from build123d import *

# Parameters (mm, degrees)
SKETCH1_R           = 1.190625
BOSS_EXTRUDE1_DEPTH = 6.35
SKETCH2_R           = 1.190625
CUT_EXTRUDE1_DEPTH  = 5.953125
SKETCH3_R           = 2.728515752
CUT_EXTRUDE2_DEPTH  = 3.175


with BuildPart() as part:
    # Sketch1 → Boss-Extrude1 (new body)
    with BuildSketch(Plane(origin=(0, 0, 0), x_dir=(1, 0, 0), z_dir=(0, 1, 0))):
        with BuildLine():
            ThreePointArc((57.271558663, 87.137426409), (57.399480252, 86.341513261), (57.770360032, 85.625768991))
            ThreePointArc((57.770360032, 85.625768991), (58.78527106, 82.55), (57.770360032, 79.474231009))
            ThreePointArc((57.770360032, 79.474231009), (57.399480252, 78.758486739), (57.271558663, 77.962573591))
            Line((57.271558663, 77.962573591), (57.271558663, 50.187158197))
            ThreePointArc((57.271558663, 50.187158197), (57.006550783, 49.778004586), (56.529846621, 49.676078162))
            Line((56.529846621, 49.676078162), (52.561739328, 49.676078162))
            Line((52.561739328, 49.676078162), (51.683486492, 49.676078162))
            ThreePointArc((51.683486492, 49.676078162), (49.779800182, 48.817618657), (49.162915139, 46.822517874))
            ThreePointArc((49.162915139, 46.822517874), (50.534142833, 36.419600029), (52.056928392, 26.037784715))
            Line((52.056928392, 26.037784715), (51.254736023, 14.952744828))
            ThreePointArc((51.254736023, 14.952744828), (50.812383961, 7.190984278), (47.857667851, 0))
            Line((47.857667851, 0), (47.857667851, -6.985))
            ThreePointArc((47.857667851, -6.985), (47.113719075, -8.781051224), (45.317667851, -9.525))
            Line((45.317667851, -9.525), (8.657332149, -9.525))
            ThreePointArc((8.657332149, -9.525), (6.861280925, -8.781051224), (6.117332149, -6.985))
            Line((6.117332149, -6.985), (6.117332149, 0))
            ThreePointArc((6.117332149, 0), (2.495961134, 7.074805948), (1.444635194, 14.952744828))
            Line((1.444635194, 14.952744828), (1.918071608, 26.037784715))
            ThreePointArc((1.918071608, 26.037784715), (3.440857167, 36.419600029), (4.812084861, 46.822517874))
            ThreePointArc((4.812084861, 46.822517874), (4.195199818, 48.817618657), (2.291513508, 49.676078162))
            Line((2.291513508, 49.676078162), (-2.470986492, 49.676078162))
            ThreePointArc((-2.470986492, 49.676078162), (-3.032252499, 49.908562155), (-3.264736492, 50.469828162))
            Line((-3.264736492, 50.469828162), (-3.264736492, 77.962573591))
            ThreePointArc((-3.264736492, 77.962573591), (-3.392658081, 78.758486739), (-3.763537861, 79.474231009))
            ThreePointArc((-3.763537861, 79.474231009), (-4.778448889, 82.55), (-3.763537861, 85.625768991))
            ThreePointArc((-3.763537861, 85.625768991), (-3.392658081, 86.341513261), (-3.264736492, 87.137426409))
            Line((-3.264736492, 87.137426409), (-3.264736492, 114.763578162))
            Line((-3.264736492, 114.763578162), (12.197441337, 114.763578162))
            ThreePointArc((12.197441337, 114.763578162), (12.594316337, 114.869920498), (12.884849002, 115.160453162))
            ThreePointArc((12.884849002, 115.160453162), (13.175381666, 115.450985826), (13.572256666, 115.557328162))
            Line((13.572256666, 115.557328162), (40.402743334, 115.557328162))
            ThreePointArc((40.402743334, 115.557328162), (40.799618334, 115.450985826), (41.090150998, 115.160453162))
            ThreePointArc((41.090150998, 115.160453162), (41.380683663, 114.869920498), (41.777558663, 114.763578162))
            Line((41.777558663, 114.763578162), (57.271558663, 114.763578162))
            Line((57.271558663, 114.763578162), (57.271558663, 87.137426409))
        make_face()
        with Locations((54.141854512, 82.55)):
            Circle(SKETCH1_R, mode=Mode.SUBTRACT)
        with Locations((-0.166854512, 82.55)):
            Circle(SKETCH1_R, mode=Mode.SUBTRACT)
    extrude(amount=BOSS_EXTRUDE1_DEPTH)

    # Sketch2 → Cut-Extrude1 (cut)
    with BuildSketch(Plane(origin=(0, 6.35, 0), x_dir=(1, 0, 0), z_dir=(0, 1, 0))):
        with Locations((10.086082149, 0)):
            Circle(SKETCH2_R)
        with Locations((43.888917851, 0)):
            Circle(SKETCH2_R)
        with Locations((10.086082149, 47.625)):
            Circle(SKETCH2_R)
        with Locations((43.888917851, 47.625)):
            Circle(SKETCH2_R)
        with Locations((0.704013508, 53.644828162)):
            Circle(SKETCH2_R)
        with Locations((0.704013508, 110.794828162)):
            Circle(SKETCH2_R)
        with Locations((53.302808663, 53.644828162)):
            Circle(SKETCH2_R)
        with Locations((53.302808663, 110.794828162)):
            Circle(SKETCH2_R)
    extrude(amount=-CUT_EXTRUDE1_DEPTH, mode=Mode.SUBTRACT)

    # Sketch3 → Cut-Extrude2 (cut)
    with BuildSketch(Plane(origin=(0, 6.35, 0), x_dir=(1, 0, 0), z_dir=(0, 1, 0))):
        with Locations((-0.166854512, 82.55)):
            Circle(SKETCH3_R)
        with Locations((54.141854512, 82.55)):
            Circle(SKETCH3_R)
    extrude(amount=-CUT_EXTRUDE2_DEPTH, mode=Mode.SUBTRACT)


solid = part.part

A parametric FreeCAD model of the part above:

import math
import FreeCAD as App
import Part
import Sketcher

V = App.Vector
Q = App.Units.Quantity

doc = App.newDocument("Part")
body = doc.addObject("PartDesign::Body", "Body")

# Sketch on XZ plane
sketch1 = doc.addObject("Sketcher::SketchObject", "Sketch")
body.addObject(sketch1)
sketch1.AttachmentSupport = (doc.XZ_Plane, [""])
sketch1.MapMode = "FlatFace"
sketch1.addGeometry(Part.ArcOfCircle(Part.Circle(V(59.811559, -87.137426, 0), V(0, 0, 1), 2.54), math.radians(143.477336), math.radians(180)), False)
sketch1.addGeometry(Part.LineSegment(V(57.271559, -87.137426, 0), V(57.271559, -114.763578, 0)), False)
sketch1.addGeometry(Part.LineSegment(V(57.271559, -114.763578, 0), V(41.777559, -114.763578, 0)), False)
sketch1.addGeometry(Part.ArcOfCircle(Part.Circle(V(41.777559, -115.557328, 0), V(0, 0, 1), 0.79375), math.radians(90), math.radians(150)), False)
sketch1.addGeometry(Part.ArcOfCircle(Part.Circle(V(40.402743, -114.763578, 0), V(0, 0, 1), 0.79375), math.radians(-90), math.radians(-30)), False)
sketch1.addGeometry(Part.LineSegment(V(40.402743, -115.557328, 0), V(13.572257, -115.557328, 0)), False)
sketch1.addGeometry(Part.ArcOfCircle(Part.Circle(V(13.572257, -114.763578, 0), V(0, 0, 1), 0.79375), math.radians(-150), math.radians(-90)), False)
sketch1.addGeometry(Part.ArcOfCircle(Part.Circle(V(12.197441, -115.557328, 0), V(0, 0, 1), 0.79375), math.radians(30), math.radians(90)), False)
sketch1.addGeometry(Part.LineSegment(V(12.197441, -114.763578, 0), V(-3.264736, -114.763578, 0)), False)
sketch1.addGeometry(Part.LineSegment(V(-3.264736, -114.763578, 0), V(-3.264736, -87.137426, 0)), False)
sketch1.addGeometry(Part.ArcOfCircle(Part.Circle(V(-5.804736, -87.137426, 0), V(0, 0, 1), 2.54), math.radians(0), math.radians(36.522664)), False)
sketch1.addGeometry(Part.ArcOfCircle(Part.Circle(V(0.389689, -82.55, 0), V(0, 0, 1), 5.168137), math.radians(143.477336), math.radians(216.522664)), False)
sketch1.addGeometry(Part.ArcOfCircle(Part.Circle(V(-5.804736, -77.962574, 0), V(0, 0, 1), 2.54), math.radians(-36.522664), math.radians(0)), False)
sketch1.addGeometry(Part.LineSegment(V(-3.264736, -77.962574, 0), V(-3.264736, -50.469828, 0)), False)
sketch1.addGeometry(Part.ArcOfCircle(Part.Circle(V(-2.470986, -50.469828, 0), V(0, 0, 1), 0.79375), math.radians(90), math.radians(180)), False)
sketch1.addGeometry(Part.LineSegment(V(-2.470986, -49.676078, 0), V(2.291514, -49.676078, 0)), False)
sketch1.addGeometry(Part.ArcOfCircle(Part.Circle(V(2.291514, -47.136078, 0), V(0, 0, 1), 2.54), math.radians(-90), math.radians(7.091192)), False)
sketch1.addGeometry(Part.ArcOfCircle(Part.Circle(V(-709.20461, -135.646538, 0), V(0, 0, 1), 719.520359), math.radians(7.091192), math.radians(8.762317)), False)
sketch1.addGeometry(Part.LineSegment(V(1.918072, -26.037785, 0), V(1.444635, -14.952745, 0)), False)
sketch1.addGeometry(Part.ArcOfCircle(Part.Circle(V(24.887564, -14.072128, 0), V(0, 0, 1), 23.459462), math.radians(143.140937), math.radians(182.151263)), False)
sketch1.addGeometry(Part.LineSegment(V(6.117332, 0, 0), V(6.117332, 6.985, 0)), False)
sketch1.addGeometry(Part.ArcOfCircle(Part.Circle(V(8.657332, 6.985, 0), V(0, 0, 1), 2.54), math.radians(90), math.radians(180)), False)
sketch1.addGeometry(Part.LineSegment(V(8.657332, 9.525, 0), V(45.317668, 9.525, 0)), False)
sketch1.addGeometry(Part.ArcOfCircle(Part.Circle(V(45.317668, 6.985, 0), V(0, 0, 1), 2.54), math.radians(0), math.radians(90)), False)
sketch1.addGeometry(Part.LineSegment(V(47.857668, 6.985, 0), V(47.857668, 0, 0)), False)
sketch1.addGeometry(Part.ArcOfCircle(Part.Circle(V(27.935867, -12.38823, 0), V(0, 0, 1), 23.459462), math.radians(-6.275938), math.radians(31.875121)), False)
sketch1.addGeometry(Part.LineSegment(V(51.254736, -14.952745, 0), V(52.056928, -26.037785, 0)), False)
sketch1.addGeometry(Part.ArcOfCircle(Part.Circle(V(763.17961, -135.646538, 0), V(0, 0, 1), 719.520359), math.radians(171.237683), math.radians(172.908808)), False)
sketch1.addGeometry(Part.ArcOfCircle(Part.Circle(V(51.683486, -47.136078, 0), V(0, 0, 1), 2.54), math.radians(172.908808), math.radians(270)), False)
sketch1.addGeometry(Part.LineSegment(V(51.683486, -49.676078, 0), V(56.529847, -49.676078, 0)), False)
sketch1.addGeometry(Part.ArcOfCircle(Part.Circle(V(56.645163, -50.302474, 0), V(0, 0, 1), 0.636922), math.radians(10.43104), math.radians(100.43104)), False)
sketch1.addGeometry(Part.LineSegment(V(57.271559, -50.187158, 0), V(57.271559, -77.962574, 0)), False)
sketch1.addGeometry(Part.ArcOfCircle(Part.Circle(V(59.811559, -77.962574, 0), V(0, 0, 1), 2.54), math.radians(180), math.radians(216.522664)), False)
sketch1.addGeometry(Part.ArcOfCircle(Part.Circle(V(53.617134, -82.55, 0), V(0, 0, 1), 5.168137), math.radians(-36.522664), math.radians(36.522664)), False)
sketch1.addGeometry(Part.Circle(V(54.141855, -82.55, 0), V(0, 0, 1), 1.190625), False)
sketch1.addGeometry(Part.Circle(V(-0.166855, -82.55, 0), V(0, 0, 1), 1.190625), False)
sketch1.addConstraint(Sketcher.Constraint("Coincident", 0, 2, 1, 1))
sketch1.addConstraint(Sketcher.Constraint("Coincident", 1, 2, 2, 1))
sketch1.addConstraint(Sketcher.Constraint("Coincident", 2, 2, 3, 1))
sketch1.addConstraint(Sketcher.Constraint("Coincident", 3, 2, 4, 2))
sketch1.addConstraint(Sketcher.Constraint("Coincident", 4, 1, 5, 1))
sketch1.addConstraint(Sketcher.Constraint("Coincident", 5, 2, 6, 2))
sketch1.addConstraint(Sketcher.Constraint("Coincident", 6, 1, 7, 1))
sketch1.addConstraint(Sketcher.Constraint("Coincident", 7, 2, 8, 1))
sketch1.addConstraint(Sketcher.Constraint("Coincident", 8, 2, 9, 1))
sketch1.addConstraint(Sketcher.Constraint("Coincident", 9, 2, 10, 1))
sketch1.addConstraint(Sketcher.Constraint("Coincident", 10, 2, 11, 2))
sketch1.addConstraint(Sketcher.Constraint("Coincident", 11, 1, 12, 1))
sketch1.addConstraint(Sketcher.Constraint("Coincident", 12, 2, 13, 1))
sketch1.addConstraint(Sketcher.Constraint("Coincident", 13, 2, 14, 2))
sketch1.addConstraint(Sketcher.Constraint("Coincident", 14, 1, 15, 1))
sketch1.addConstraint(Sketcher.Constraint("Coincident", 15, 2, 16, 1))
sketch1.addConstraint(Sketcher.Constraint("Coincident", 16, 2, 17, 1))
sketch1.addConstraint(Sketcher.Constraint("Coincident", 17, 2, 18, 1))
sketch1.addConstraint(Sketcher.Constraint("Coincident", 18, 2, 19, 2))
sketch1.addConstraint(Sketcher.Constraint("Coincident", 19, 1, 20, 1))
sketch1.addConstraint(Sketcher.Constraint("Coincident", 20, 2, 21, 2))
sketch1.addConstraint(Sketcher.Constraint("Coincident", 21, 1, 22, 1))
sketch1.addConstraint(Sketcher.Constraint("Coincident", 22, 2, 23, 2))
sketch1.addConstraint(Sketcher.Constraint("Coincident", 23, 1, 24, 1))
sketch1.addConstraint(Sketcher.Constraint("Coincident", 24, 2, 25, 2))
sketch1.addConstraint(Sketcher.Constraint("Coincident", 25, 1, 26, 1))
sketch1.addConstraint(Sketcher.Constraint("Coincident", 26, 2, 27, 1))
sketch1.addConstraint(Sketcher.Constraint("Coincident", 27, 2, 28, 1))
sketch1.addConstraint(Sketcher.Constraint("Coincident", 28, 2, 29, 1))
sketch1.addConstraint(Sketcher.Constraint("Coincident", 29, 2, 30, 2))
sketch1.addConstraint(Sketcher.Constraint("Coincident", 30, 1, 31, 1))
sketch1.addConstraint(Sketcher.Constraint("Coincident", 31, 2, 32, 1))
sketch1.addConstraint(Sketcher.Constraint("Coincident", 32, 2, 33, 2))
sketch1.addConstraint(Sketcher.Constraint("Coincident", 33, 1, 0, 1))
sketch1.addConstraint(Sketcher.Constraint("Vertical", 1))
sketch1.addConstraint(Sketcher.Constraint("Horizontal", 2))
sketch1.addConstraint(Sketcher.Constraint("Horizontal", 5))
sketch1.addConstraint(Sketcher.Constraint("Horizontal", 8))
sketch1.addConstraint(Sketcher.Constraint("Vertical", 9))
sketch1.addConstraint(Sketcher.Constraint("Vertical", 13))
sketch1.addConstraint(Sketcher.Constraint("Horizontal", 15))
sketch1.addConstraint(Sketcher.Constraint("Vertical", 20))
sketch1.addConstraint(Sketcher.Constraint("Horizontal", 22))
sketch1.addConstraint(Sketcher.Constraint("Vertical", 24))
sketch1.addConstraint(Sketcher.Constraint("Horizontal", 29))
sketch1.addConstraint(Sketcher.Constraint("Vertical", 31))
sketch1.addConstraint(Sketcher.Constraint("PointOnObject", 19, 1, -1))
sketch1.addConstraint(Sketcher.Constraint("PointOnObject", 24, 2, -1))
sketch1.addConstraint(Sketcher.Constraint("Radius", 0, Q("0.1 in")))
sketch1.addConstraint(Sketcher.Constraint("Radius", 10, Q("0.1 in")))
sketch1.addConstraint(Sketcher.Constraint("Radius", 12, Q("0.1 in")))
sketch1.addConstraint(Sketcher.Constraint("Radius", 16, Q("0.1 in")))
sketch1.addConstraint(Sketcher.Constraint("Radius", 21, Q("0.1 in")))
sketch1.addConstraint(Sketcher.Constraint("Radius", 23, Q("0.1 in")))
sketch1.addConstraint(Sketcher.Constraint("Radius", 28, Q("0.1 in")))
sketch1.addConstraint(Sketcher.Constraint("Radius", 32, Q("0.1 in")))
sketch1.addConstraint(Sketcher.Constraint("Diameter", 34, Q("0.09375 in")))
sketch1.addConstraint(Sketcher.Constraint("Diameter", 35, Q("0.09375 in")))
sketch1.addConstraint(Sketcher.Constraint("Radius", 3, Q("0.03125 in")))
sketch1.addConstraint(Sketcher.Constraint("Radius", 4, Q("0.03125 in")))
sketch1.addConstraint(Sketcher.Constraint("Radius", 6, Q("0.03125 in")))
sketch1.addConstraint(Sketcher.Constraint("Radius", 7, Q("0.03125 in")))
sketch1.addConstraint(Sketcher.Constraint("Radius", 14, Q("0.03125 in")))
sketch1.addConstraint(Sketcher.Constraint("DistanceX", 2, 2, 2, 1, Q("0.61 in")))
sketch1.addConstraint(Sketcher.Constraint("DistanceX", 0, 2, 32, 3, Q("0.1 in")))
sketch1.addConstraint(Sketcher.Constraint("DistanceX", 12, 3, 9, 2, Q("0.1 in")))
sketch1.addConstraint(Sketcher.Constraint("DistanceX", 20, 2, 21, 1, Q("0.1 in")))
sketch1.addConstraint(Sketcher.Constraint("DistanceY", 20, 2, 21, 1, Q("0.1 in")))
sketch1.addConstraint(Sketcher.Constraint("DistanceX", 22, 2, 23, 1, Q("0.1 in")))
sketch1.addConstraint(Sketcher.Constraint("DistanceY", 23, 1, 22, 2, Q("0.1 in")))
sketch1.addConstraint(Sketcher.Constraint("DistanceX", 15, 1, 15, 2, Q("0.1875 in")))
sketch1.addConstraint(Sketcher.Constraint("DistanceY", 20, 1, 20, 2, Q("0.275 in")))
sketch1.addConstraint(Sketcher.Constraint("DistanceY", 11, 3, -1, 1, Q("3.25 in")))
sketch1.addConstraint(Sketcher.Constraint("DistanceY", 33, 3, -1, 1, Q("3.25 in")))
sketch1.addConstraint(Sketcher.Constraint("DistanceY", 34, 3, -1, 1, Q("3.25 in")))
sketch1.addConstraint(Sketcher.Constraint("DistanceY", 35, 3, -1, 1, Q("3.25 in")))
sketch1.addConstraint(Sketcher.Constraint("DistanceX", 3, 3, 0, 3, Q("0.71 in")))
sketch1.addConstraint(Sketcher.Constraint("Radius", 17, 719.520359))
sketch1.addConstraint(Sketcher.Constraint("Radius", 27, 719.520359))
sketch1.addConstraint(Sketcher.Constraint("DistanceY", 3, 3, 4, 3, Q("0.03125 in")))
sketch1.addConstraint(Sketcher.Constraint("DistanceY", 7, 3, 6, 3, Q("0.03125 in")))
sketch1.addConstraint(Sketcher.Constraint("DistanceY", 6, 3, 14, 3, Q("2.53125 in")))
sketch1.addConstraint(Sketcher.Constraint("DistanceX", 14, 3, 16, 3, Q("0.1875 in")))
sketch1.addConstraint(Sketcher.Constraint("DistanceY", 3, 2, 4, 3, Q("0.015625 in")))
sketch1.addConstraint(Sketcher.Constraint("DistanceY", 5, 2, 6, 1, Q("0.015625 in")))
sketch1.addConstraint(Sketcher.Constraint("DistanceX", 13, 2, 14, 1, Q("0.03125 in")))
sketch1.addConstraint(Sketcher.Constraint("DistanceY", 13, 2, 14, 1, Q("0.03125 in")))
sketch1.addConstraint(Sketcher.Constraint("Radius", 11, 5.168137))
sketch1.addConstraint(Sketcher.Constraint("Radius", 19, 23.459462))
sketch1.addConstraint(Sketcher.Constraint("Radius", 25, 23.459462))
sketch1.addConstraint(Sketcher.Constraint("Radius", 30, 0.636922))
sketch1.addConstraint(Sketcher.Constraint("Radius", 33, 5.168137))
sketch1.addConstraint(Sketcher.Constraint("DistanceX", 29, 1, 29, 2, 4.84636))
sketch1.addConstraint(Sketcher.Constraint("DistanceY", 1, 2, 1, 1, 27.626152))
sketch1.addConstraint(Sketcher.Constraint("DistanceY", 9, 1, 9, 2, 27.626152))
sketch1.addConstraint(Sketcher.Constraint("DistanceY", 3, 3, 0, 3, 28.419902))
sketch1.addConstraint(Sketcher.Constraint("DistanceX", 6, 3, 3, 3, 28.205302))
sketch1.addConstraint(Sketcher.Constraint("DistanceY", 7, 3, 10, 3, 28.419902))
sketch1.addConstraint(Sketcher.Constraint("DistanceX", 17, 3, 11, 3, 709.594299))
sketch1.addConstraint(Sketcher.Constraint("DistanceY", 14, 3, 19, 3, 36.3977))
sketch1.addConstraint(Sketcher.Constraint("DistanceX", 12, 3, 19, 3, 30.6923))
sketch1.addConstraint(Sketcher.Constraint("DistanceY", 19, 3, 25, 3, 1.683898))
sketch1.addConstraint(Sketcher.Constraint("DistanceX", 25, 3, 23, 3, 17.3818))
sketch1.addConstraint(Sketcher.Constraint("DistanceX", 19, 3, 30, 3, 31.757599))
sketch1.addConstraint(Sketcher.Constraint("DistanceY", 32, 3, 30, 3, 27.660099))
sketch1.addConstraint(Sketcher.Constraint("DistanceX", 7, 2, 4, 3, 28.205302))
sketch1.addConstraint(Sketcher.Constraint("DistanceX", 10, 2, 9, 2, 0.498801))
sketch1.addConstraint(Sketcher.Constraint("DistanceX", 12, 3, 11, 1, 2.041199))
sketch1.addConstraint(Sketcher.Constraint("DistanceX", 31, 2, 32, 2, 0.498801))
sketch1.addConstraint(Sketcher.Constraint("DistanceX", 0, 2, 33, 1, 0.498801))
sketch1.addConstraint(Sketcher.Constraint("Distance", 26, 11.114028))
sketch1.addConstraint(Sketcher.Constraint("DistanceX", 5, 2, 5, 1, 26.830487))
sketch1.addConstraint(Sketcher.Constraint("DistanceX", 8, 2, 8, 1, 15.462178))
sketch1.addConstraint(Sketcher.Constraint("DistanceX", 22, 1, 22, 2, 36.660336))
sketch1.addConstraint(Sketcher.Constraint("DistanceY", 13, 1, 13, 2, 27.492745))
sketch1.addConstraint(Sketcher.Constraint("DistanceY", 31, 2, 31, 1, 27.775415))
sketch1.addConstraint(Sketcher.Constraint("DistanceX", -1, 1, 0, 3, 59.811559))
sketch1.addConstraint(Sketcher.Constraint("DistanceX", -1, 1, 27, 3, 763.17961))
sketch1.addConstraint(Sketcher.Constraint("DistanceY", 28, 3, -1, 1, 47.136078))
sketch1.addConstraint(Sketcher.Constraint("DistanceX", -1, 1, 26, 2, 52.056928))
sketch1.addConstraint(Sketcher.Constraint("DistanceY", 27, 3, 0, 3, 48.509112))
sketch1.addConstraint(Sketcher.Constraint("DistanceX", 33, 3, 34, 3, 0.524721))
sketch1.addConstraint(Sketcher.Constraint("DistanceX", 10, 3, 35, 3, 5.637882))
sketch1.addConstraint(Sketcher.Constraint("DistanceX", 16, 3, 16, 2, 2.520571))
sketch1.addConstraint(Sketcher.Constraint("DistanceX", 18, 2, 19, 3, 23.442928))
sketch1.addConstraint(Sketcher.Constraint("DistanceX", 27, 2, 28, 3, 2.520571))
sketch1.addConstraint(Sketcher.Constraint("Distance", 18, 11.095145))
sketch1.addConstraint(Sketcher.Constraint("DistanceX", -1, 1, 4, 1, 40.402743))
pad1 = doc.addObject("PartDesign::Pad", "Pad")
body.addObject(pad1)
pad1.Profile = sketch1
pad1.Length = Q("0.25 in")
pad1.Reversed = True

# Sketch on XZ plane
sketch2 = doc.addObject("Sketcher::SketchObject", "Sketch001")
body.addObject(sketch2)
sketch2.AttachmentSupport = (doc.XZ_Plane, [""])
sketch2.MapMode = "FlatFace"
sketch2.AttachmentOffset = App.Placement(V(0, 0, -0.25 * 25.4), App.Rotation())
sketch2.addGeometry(Part.Circle(V(10.1, 0, 0), V(0, 0, 1), 1.2), False)
sketch2.addGeometry(Part.Circle(V(43.9, 0, 0), V(0, 0, 1), 1.2), False)
sketch2.addGeometry(Part.Circle(V(10.1, -47.6, 0), V(0, 0, 1), 1.2), False)
sketch2.addGeometry(Part.Circle(V(43.9, -47.6, 0), V(0, 0, 1), 1.2), False)
sketch2.addGeometry(Part.Circle(V(0.7, -53.6, 0), V(0, 0, 1), 1.2), False)
sketch2.addGeometry(Part.Circle(V(0.7, -110.8, 0), V(0, 0, 1), 1.2), False)
sketch2.addGeometry(Part.Circle(V(53.3, -53.6, 0), V(0, 0, 1), 1.2), False)
sketch2.addGeometry(Part.Circle(V(53.3, -110.8, 0), V(0, 0, 1), 1.2), False)
sketch2.addConstraint(Sketcher.Constraint("Equal", 0, 1))
sketch2.addConstraint(Sketcher.Constraint("Equal", 1, 2))
sketch2.addConstraint(Sketcher.Constraint("Equal", 2, 3))
sketch2.addConstraint(Sketcher.Constraint("Equal", 3, 4))
sketch2.addConstraint(Sketcher.Constraint("Equal", 4, 5))
sketch2.addConstraint(Sketcher.Constraint("Equal", 5, 6))
sketch2.addConstraint(Sketcher.Constraint("Equal", 6, 7))
sketch2.addConstraint(Sketcher.Constraint("PointOnObject", 0, 3, -1))
sketch2.addConstraint(Sketcher.Constraint("PointOnObject", 1, 3, -1))
sketch2.addConstraint(Sketcher.Constraint("Horizontal", 2, 3, 3, 3))
sketch2.addConstraint(Sketcher.Constraint("Horizontal", 4, 3, 6, 3))
sketch2.addConstraint(Sketcher.Constraint("Horizontal", 5, 3, 7, 3))
sketch2.addConstraint(Sketcher.Constraint("Vertical", 0, 3, 2, 3))
sketch2.addConstraint(Sketcher.Constraint("Vertical", 1, 3, 3, 3))
sketch2.addConstraint(Sketcher.Constraint("Vertical", 4, 3, 5, 3))
sketch2.addConstraint(Sketcher.Constraint("Vertical", 6, 3, 7, 3))
sketch2.addConstraint(Sketcher.Constraint("Diameter", 0, Q("0.09375 in")))
sketch2.addConstraint(Sketcher.Constraint("DistanceY", 5, 3, 4, 3, Q("2.25 in")))
sketch2.addConstraint(Sketcher.Constraint("DistanceY", 2, 3, -1, 1, Q("1.875 in")))
sketch2.addConstraint(Sketcher.Constraint("DistanceY", 4, 3, -1, 1, 53.644828))
sketch2.addConstraint(Sketcher.Constraint("DistanceX", -1, 1, 6, 3, 53.302809))
sketch2.addConstraint(Sketcher.Constraint("DistanceX", 4, 3, 2, 3, 9.382069))
sketch2.addConstraint(Sketcher.Constraint("DistanceX", 3, 3, 6, 3, 9.413891))
sketch2.addConstraint(Sketcher.Constraint("DistanceX", -1, 1, 0, 3, 10.086082))
pocket1 = doc.addObject("PartDesign::Pocket", "Pocket")
body.addObject(pocket1)
pocket1.Profile = sketch2
pocket1.Length = Q("0.234375 in")
pocket1.Reversed = True

# Sketch on XZ plane
sketch3 = doc.addObject("Sketcher::SketchObject", "Sketch002")
body.addObject(sketch3)
sketch3.AttachmentSupport = (doc.XZ_Plane, [""])
sketch3.MapMode = "FlatFace"
sketch3.AttachmentOffset = App.Placement(V(0, 0, -0.25 * 25.4), App.Rotation())
sketch3.addGeometry(Part.Circle(V(-0.2, -82.5, 0), V(0, 0, 1), 2.7), False)
sketch3.addGeometry(Part.Circle(V(54.1, -82.5, 0), V(0, 0, 1), 2.7), False)
sketch3.addConstraint(Sketcher.Constraint("Equal", 0, 1))
sketch3.addConstraint(Sketcher.Constraint("Horizontal", 0, 3, 1, 3))
sketch3.addConstraint(Sketcher.Constraint("DistanceY", 0, 3, -1, 1, Q("3.25 in")))
sketch3.addConstraint(Sketcher.Constraint("Diameter", 0, 5.457032))
sketch3.addConstraint(Sketcher.Constraint("DistanceX", 0, 3, 1, 3, 54.308709))
sketch3.addConstraint(Sketcher.Constraint("DistanceX", 0, 3, -1, 1, 0.166855))
pocket2 = doc.addObject("PartDesign::Pocket", "Pocket001")
body.addObject(pocket2)
pocket2.Profile = sketch3
pocket2.Length = Q("0.125 in")
pocket2.Reversed = True

doc.recompute()
